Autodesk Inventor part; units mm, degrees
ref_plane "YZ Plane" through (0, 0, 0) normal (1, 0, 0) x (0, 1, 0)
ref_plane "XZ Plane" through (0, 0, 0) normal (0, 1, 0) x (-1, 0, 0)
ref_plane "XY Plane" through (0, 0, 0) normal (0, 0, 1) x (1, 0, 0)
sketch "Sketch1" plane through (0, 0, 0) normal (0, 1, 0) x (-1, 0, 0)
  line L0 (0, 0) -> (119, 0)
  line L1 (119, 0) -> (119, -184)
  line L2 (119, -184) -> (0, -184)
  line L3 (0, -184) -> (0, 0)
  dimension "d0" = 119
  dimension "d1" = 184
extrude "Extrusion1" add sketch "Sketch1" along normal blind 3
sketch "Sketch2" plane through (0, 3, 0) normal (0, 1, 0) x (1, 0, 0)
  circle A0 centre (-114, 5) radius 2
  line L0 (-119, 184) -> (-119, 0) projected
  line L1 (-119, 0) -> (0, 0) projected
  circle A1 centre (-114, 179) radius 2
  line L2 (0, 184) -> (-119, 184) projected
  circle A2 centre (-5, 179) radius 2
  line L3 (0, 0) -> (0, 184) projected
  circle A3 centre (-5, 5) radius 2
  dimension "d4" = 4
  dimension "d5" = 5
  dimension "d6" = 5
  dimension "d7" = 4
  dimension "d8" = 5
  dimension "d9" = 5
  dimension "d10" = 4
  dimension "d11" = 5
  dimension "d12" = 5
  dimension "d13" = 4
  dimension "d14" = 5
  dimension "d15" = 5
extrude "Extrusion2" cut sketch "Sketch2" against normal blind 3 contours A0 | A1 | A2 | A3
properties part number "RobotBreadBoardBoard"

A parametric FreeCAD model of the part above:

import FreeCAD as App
import Part
import Sketcher
from FreeCAD import Vector
Q = App.Units.Quantity


def add_polygon(sketch, points):
    """Adds a closed chain of lines whose ends are joined by coincident constraints."""
    first, n = sketch.GeometryCount, len(points)
    for a, b in zip(points, points[1:] + points[:1]):
        sketch.addGeometry(Part.LineSegment(App.Vector(*a, 0), App.Vector(*b, 0)), False)
    for i in range(n):
        sketch.addConstraint(Sketcher.Constraint("Coincident", first + i, 2, first + (i + 1) % n, 1))

doc = App.newDocument("Part")
body = doc.addObject("PartDesign::Body", "Body")

sketch1 = body.newObject("Sketcher::SketchObject", "Sketch")
sketch1.AttachmentSupport = (doc.getObject("XZ_Plane"), [""])
sketch1.MapMode = "FlatFace"
add_polygon(sketch1, [(-119, 0), (0, 0), (0, -184), (-119, -184)])
sketch1.addConstraint(Sketcher.Constraint("Horizontal", 0))
sketch1.addConstraint(Sketcher.Constraint("Vertical", 1))
sketch1.addConstraint(Sketcher.Constraint("Horizontal", 2))
sketch1.addConstraint(Sketcher.Constraint("Vertical", 3))
sketch1.addConstraint(Sketcher.Constraint("Coincident", 0, 2, -1, 1))
sketch1.addConstraint(Sketcher.Constraint("DistanceX", 0, 1, 0, 2, Q("119 mm")))
sketch1.addConstraint(Sketcher.Constraint("DistanceY", 1, 2, 1, 1, Q("184 mm")))
pad1 = body.newObject("PartDesign::Pad", "Pad")
pad1.Profile = sketch1
pad1.Length = 3
pad1.Reversed = True

sketch2 = body.newObject("Sketcher::SketchObject", "Sketch001")
sketch2.AttachmentSupport = (doc.getObject("XZ_Plane"), [""])
sketch2.MapMode = "FlatFace"
sketch2.AttachmentOffset = App.Placement(Vector(0, 0, -3), App.Rotation())
sketch2.addGeometry(Part.Circle(Vector(-114, -5, 0), Vector(0, 0, 1), 2), False)
sketch2.addGeometry(Part.Circle(Vector(-114, -179, 0), Vector(0, 0, 1), 2), False)
sketch2.addGeometry(Part.Circle(Vector(-5, -179, 0), Vector(0, 0, 1), 2), False)
sketch2.addGeometry(Part.Circle(Vector(-5, -5, 0), Vector(0, 0, 1), 2), False)
sketch2.addConstraint(Sketcher.Constraint("Equal", 0, 1))
sketch2.addConstraint(Sketcher.Constraint("Equal", 1, 2))
sketch2.addConstraint(Sketcher.Constraint("Equal", 2, 3))
sketch2.addConstraint(Sketcher.Constraint("Horizontal", 1, 3, 2, 3))
sketch2.addConstraint(Sketcher.Constraint("Horizontal", 0, 3, 3, 3))
sketch2.addConstraint(Sketcher.Constraint("Vertical", 0, 3, 1, 3))
sketch2.addConstraint(Sketcher.Constraint("Vertical", 2, 3, 3, 3))
sketch2.addConstraint(Sketcher.Constraint("Diameter", 0, Q("4 mm")))
sketch2.addConstraint(Sketcher.Constraint("DistanceY", 0, 3, -1, 1, Q("5 mm")))
sketch2.addConstraint(Sketcher.Constraint("DistanceX", 2, 3, -1, 1, Q("5 mm")))
sketch2.addConstraint(Sketcher.Constraint("DistanceX", 0, 3, -1, 1, Q("114 mm")))
sketch2.addConstraint(Sketcher.Constraint("DistanceY", 1, 3, -1, 1, Q("179 mm")))
pocket1 = body.newObject("PartDesign::Pocket", "Pocket")
pocket1.Profile = sketch2
pocket1.Length = 3
pocket1.Reversed = True

doc.recompute()
